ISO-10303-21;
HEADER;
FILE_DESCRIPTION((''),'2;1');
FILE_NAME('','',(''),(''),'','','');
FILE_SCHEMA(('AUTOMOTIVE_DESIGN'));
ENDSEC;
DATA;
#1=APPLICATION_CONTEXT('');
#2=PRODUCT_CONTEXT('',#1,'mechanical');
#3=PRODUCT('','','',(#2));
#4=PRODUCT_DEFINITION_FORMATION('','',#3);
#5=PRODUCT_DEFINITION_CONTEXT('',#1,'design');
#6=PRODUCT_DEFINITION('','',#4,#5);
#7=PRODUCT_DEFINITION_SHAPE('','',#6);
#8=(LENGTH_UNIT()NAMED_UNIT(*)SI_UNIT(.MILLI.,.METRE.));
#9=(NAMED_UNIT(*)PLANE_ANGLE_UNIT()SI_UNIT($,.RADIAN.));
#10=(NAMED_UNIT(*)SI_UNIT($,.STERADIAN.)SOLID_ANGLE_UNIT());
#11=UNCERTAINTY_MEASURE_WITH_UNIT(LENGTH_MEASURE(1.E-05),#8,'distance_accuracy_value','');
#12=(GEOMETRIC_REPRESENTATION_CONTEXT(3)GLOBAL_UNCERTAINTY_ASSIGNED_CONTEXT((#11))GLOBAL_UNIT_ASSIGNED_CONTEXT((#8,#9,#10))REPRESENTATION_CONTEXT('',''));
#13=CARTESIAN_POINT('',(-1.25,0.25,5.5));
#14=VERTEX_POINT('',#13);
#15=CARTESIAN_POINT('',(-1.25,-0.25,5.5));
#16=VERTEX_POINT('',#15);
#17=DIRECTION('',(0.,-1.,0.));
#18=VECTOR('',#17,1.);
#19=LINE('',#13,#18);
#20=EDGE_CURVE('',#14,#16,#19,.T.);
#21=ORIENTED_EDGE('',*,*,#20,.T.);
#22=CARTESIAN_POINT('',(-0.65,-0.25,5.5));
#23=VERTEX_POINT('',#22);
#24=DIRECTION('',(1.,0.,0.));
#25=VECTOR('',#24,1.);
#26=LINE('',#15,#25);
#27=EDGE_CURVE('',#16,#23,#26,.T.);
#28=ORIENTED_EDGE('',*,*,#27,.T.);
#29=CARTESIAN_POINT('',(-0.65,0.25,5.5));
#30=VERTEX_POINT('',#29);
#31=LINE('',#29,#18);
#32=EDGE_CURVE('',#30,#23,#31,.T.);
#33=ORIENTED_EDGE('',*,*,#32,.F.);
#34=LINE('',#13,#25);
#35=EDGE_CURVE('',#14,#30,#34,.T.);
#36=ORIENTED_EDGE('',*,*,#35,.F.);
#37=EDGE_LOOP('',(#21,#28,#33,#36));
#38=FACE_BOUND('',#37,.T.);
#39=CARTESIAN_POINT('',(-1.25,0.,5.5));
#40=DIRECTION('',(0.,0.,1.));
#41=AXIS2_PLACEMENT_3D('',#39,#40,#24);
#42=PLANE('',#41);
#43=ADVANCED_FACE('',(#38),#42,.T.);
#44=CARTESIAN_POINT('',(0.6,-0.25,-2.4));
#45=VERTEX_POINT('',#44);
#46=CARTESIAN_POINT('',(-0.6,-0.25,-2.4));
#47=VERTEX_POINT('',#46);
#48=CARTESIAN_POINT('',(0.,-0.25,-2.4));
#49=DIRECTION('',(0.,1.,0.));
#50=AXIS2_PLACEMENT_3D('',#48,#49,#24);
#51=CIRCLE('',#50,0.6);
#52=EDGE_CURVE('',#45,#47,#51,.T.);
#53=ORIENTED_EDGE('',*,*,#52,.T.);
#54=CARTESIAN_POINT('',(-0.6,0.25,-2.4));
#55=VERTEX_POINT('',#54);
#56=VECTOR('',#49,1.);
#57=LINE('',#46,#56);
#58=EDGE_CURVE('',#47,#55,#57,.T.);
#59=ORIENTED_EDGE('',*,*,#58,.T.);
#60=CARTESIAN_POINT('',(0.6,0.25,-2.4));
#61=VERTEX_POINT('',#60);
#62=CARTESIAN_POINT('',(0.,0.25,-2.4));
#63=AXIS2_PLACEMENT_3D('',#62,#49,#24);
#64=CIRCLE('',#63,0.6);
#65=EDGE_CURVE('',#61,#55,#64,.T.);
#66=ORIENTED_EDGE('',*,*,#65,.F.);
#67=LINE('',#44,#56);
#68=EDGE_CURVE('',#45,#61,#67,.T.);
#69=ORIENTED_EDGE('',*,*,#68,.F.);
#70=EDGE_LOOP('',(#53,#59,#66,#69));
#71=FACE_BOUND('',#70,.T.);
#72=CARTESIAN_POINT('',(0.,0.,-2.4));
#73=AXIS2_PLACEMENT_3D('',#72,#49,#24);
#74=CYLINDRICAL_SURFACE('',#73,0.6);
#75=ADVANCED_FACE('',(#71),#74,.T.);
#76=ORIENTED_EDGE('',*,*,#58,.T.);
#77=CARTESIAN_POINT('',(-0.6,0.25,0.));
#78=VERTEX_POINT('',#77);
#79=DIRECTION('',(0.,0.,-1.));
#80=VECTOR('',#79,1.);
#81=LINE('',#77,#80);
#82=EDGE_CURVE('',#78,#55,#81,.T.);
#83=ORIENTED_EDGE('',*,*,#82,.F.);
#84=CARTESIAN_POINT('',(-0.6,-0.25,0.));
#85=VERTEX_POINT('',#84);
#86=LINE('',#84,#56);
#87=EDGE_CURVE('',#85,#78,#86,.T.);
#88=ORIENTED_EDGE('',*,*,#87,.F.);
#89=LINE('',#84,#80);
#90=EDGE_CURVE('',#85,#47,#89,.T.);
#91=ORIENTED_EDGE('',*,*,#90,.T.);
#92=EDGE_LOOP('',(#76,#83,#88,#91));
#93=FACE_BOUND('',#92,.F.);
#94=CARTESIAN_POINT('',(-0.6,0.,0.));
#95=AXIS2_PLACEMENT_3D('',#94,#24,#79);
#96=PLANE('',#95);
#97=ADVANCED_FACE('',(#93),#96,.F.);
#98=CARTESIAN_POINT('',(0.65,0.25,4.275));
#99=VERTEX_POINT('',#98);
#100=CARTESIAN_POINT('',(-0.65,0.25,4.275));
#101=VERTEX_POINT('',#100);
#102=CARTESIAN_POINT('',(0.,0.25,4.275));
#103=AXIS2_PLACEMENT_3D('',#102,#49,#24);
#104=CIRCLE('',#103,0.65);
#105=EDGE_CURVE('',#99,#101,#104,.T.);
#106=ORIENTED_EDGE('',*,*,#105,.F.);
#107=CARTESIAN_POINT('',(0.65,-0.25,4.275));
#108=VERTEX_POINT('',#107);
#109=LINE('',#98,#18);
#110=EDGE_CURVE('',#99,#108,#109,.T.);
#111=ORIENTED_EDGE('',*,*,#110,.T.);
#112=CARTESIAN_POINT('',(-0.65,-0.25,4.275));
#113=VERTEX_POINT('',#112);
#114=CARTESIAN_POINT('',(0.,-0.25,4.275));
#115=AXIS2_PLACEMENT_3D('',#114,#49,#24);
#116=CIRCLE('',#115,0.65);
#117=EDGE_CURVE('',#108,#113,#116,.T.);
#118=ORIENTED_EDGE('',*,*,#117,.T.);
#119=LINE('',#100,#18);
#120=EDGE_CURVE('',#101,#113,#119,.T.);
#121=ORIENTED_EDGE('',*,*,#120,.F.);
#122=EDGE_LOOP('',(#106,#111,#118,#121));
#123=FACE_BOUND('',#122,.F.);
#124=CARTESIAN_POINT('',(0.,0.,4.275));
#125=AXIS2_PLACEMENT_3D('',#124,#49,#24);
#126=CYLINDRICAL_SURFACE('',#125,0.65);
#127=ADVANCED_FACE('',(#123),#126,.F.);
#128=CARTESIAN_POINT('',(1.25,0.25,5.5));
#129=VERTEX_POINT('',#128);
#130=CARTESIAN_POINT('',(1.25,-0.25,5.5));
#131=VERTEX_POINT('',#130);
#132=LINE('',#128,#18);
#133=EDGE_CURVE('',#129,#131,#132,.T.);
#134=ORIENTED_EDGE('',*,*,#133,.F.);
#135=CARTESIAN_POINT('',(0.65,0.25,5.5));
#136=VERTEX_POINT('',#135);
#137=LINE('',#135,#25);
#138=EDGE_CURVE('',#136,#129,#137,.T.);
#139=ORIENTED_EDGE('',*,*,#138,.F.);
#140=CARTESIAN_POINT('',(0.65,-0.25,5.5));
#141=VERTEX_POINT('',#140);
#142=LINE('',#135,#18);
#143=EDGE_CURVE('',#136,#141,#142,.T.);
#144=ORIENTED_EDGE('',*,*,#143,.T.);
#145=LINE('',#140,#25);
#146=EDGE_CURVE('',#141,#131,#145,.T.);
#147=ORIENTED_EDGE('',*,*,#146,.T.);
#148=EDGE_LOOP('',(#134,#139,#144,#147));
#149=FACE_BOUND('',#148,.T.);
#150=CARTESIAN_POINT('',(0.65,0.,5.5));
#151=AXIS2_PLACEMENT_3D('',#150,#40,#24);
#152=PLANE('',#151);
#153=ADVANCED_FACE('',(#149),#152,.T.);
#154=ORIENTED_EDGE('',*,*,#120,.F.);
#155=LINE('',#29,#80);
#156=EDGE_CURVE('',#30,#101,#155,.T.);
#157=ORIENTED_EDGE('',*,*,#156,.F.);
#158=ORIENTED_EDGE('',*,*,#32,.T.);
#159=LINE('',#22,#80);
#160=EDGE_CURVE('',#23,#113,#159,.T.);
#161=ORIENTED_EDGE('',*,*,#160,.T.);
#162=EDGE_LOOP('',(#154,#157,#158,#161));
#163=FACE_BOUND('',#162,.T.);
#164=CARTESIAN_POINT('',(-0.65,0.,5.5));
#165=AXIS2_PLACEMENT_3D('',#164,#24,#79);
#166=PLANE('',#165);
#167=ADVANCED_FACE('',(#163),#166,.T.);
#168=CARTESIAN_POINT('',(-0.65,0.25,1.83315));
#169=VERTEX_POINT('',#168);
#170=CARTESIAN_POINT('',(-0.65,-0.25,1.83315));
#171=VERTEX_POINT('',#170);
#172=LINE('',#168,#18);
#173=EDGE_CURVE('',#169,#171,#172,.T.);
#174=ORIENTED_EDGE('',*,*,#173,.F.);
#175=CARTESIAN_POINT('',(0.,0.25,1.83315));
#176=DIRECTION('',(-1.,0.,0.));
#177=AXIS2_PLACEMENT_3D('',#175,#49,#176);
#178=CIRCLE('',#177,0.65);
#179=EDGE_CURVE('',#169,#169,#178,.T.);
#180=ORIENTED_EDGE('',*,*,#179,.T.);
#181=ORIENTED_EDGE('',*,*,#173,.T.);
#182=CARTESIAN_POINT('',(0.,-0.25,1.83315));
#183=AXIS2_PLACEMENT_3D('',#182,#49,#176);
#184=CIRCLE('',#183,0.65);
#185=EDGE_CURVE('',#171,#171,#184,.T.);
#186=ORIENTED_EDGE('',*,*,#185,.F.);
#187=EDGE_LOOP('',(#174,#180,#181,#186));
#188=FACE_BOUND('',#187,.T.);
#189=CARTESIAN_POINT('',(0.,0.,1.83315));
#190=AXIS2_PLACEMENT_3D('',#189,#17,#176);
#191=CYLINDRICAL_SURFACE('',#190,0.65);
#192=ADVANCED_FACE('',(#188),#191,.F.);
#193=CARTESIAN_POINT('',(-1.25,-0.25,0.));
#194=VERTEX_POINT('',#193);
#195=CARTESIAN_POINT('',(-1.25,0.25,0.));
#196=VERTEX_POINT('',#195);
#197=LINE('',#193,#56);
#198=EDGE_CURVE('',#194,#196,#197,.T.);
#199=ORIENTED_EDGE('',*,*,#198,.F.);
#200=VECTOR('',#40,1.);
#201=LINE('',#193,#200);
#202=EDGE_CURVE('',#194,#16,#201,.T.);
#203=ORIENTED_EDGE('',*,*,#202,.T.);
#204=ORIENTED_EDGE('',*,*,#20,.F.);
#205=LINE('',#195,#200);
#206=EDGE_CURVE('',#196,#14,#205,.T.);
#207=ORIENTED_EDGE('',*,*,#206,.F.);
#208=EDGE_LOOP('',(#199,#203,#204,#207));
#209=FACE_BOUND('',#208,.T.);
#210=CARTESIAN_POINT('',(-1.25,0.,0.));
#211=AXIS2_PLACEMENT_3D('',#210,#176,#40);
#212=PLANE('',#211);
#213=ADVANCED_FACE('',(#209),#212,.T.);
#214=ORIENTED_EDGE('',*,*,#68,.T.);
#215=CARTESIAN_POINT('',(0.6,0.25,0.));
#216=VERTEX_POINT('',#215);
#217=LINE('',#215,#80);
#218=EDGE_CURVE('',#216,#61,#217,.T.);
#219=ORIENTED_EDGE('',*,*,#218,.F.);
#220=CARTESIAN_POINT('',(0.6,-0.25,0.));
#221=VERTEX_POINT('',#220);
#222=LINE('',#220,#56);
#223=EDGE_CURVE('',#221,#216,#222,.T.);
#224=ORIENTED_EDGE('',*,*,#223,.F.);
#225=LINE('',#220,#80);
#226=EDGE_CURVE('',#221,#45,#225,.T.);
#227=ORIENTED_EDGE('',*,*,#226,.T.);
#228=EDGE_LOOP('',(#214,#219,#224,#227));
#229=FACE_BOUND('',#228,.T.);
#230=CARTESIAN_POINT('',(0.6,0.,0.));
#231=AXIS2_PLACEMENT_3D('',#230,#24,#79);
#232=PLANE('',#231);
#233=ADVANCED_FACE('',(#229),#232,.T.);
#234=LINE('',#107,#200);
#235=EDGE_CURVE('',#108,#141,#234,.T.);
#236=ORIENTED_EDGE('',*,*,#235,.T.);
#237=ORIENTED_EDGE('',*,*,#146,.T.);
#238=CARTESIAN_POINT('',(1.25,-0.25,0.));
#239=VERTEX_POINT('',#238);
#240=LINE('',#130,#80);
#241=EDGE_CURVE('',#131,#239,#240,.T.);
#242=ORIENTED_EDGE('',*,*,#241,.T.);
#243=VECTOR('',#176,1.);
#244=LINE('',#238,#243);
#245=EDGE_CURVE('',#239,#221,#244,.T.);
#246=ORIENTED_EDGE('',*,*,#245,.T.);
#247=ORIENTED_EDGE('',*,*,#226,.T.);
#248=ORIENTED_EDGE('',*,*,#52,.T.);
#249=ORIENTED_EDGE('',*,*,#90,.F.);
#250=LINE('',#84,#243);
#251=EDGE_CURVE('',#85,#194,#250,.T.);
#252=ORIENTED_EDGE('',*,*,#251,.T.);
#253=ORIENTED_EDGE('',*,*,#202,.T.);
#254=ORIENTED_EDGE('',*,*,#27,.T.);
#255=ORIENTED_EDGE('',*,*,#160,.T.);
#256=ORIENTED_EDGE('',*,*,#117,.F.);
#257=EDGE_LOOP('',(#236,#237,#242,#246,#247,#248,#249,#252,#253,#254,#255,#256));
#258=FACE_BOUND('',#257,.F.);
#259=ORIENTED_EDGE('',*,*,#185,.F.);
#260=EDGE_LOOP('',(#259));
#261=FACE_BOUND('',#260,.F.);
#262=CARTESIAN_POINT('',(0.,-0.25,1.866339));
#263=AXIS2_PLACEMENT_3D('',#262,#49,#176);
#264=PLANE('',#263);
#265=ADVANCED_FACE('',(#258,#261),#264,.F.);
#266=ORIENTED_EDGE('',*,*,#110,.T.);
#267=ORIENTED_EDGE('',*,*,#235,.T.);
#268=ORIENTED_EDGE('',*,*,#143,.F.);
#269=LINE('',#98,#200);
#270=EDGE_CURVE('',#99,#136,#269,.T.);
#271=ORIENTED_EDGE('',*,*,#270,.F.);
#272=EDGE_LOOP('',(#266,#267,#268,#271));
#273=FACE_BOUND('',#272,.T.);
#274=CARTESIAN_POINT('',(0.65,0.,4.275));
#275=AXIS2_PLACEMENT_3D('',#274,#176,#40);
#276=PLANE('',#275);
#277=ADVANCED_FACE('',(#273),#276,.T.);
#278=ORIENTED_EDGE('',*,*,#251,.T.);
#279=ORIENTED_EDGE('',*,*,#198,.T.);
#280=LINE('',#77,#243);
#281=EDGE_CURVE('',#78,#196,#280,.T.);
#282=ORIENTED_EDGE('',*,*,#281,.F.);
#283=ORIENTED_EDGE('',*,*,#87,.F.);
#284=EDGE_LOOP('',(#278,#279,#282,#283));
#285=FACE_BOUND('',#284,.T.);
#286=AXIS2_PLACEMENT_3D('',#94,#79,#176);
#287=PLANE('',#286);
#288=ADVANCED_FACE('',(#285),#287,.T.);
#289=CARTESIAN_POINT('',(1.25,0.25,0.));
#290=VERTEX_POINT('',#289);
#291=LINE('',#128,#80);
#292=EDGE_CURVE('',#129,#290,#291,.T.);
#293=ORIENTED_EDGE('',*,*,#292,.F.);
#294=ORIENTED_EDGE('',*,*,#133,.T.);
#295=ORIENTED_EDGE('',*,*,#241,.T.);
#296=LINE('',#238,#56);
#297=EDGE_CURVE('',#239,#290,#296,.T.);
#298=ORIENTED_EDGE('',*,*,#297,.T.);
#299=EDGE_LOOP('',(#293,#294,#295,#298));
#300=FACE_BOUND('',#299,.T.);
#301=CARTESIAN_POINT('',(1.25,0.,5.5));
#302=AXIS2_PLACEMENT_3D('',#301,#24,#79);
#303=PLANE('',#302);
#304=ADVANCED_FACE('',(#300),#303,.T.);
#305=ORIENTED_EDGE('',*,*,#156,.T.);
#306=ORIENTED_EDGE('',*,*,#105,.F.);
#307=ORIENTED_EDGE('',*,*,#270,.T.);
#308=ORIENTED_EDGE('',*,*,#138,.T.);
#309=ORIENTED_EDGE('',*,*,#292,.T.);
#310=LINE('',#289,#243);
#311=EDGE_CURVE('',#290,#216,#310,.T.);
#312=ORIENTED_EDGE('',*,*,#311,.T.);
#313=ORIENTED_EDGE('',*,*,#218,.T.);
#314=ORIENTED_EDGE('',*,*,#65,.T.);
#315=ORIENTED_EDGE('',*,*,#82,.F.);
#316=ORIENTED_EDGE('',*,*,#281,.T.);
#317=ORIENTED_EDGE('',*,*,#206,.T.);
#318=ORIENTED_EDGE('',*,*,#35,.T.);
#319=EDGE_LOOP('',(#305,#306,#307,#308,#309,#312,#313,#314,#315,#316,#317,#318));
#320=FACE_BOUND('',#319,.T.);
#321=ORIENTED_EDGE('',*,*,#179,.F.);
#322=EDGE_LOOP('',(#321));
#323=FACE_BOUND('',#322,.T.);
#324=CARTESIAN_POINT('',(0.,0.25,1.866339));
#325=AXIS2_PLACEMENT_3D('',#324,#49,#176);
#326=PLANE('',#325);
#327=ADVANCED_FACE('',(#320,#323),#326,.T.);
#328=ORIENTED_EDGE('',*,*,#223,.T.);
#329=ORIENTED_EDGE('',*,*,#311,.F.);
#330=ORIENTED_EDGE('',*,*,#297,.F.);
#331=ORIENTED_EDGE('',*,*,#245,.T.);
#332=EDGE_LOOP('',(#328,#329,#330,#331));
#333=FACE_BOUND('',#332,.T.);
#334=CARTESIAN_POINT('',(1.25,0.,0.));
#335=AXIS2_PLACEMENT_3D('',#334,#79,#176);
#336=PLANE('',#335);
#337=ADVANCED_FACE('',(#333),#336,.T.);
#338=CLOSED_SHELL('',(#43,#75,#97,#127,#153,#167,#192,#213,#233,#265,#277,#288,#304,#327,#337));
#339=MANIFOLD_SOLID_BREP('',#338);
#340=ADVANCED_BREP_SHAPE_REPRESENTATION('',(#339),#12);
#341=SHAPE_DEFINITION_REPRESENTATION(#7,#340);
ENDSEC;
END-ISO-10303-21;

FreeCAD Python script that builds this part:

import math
import FreeCAD as App
import Part
import Sketcher
from FreeCAD import Vector

doc = App.newDocument("Part")
body = doc.addObject("PartDesign::Body", "Body")

# Sketch on XZ plane
sketch1 = body.newObject("Sketcher::SketchObject", "Sketch")
sketch1.AttachmentSupport = (doc.getObject("XZ_Plane"), [""])
sketch1.MapMode = "FlatFace"
sketch1.addGeometry(Part.LineSegment(Vector(1.2, 5.5, 0), Vector(1.2, 0, 0)), False)
sketch1.addGeometry(Part.LineSegment(Vector(1.2, 0, 0), Vector(0.6, 0, 0)), False)
sketch1.addGeometry(Part.LineSegment(Vector(0.6, 0, 0), Vector(0.6, -2.4, 0)), False)
sketch1.addGeometry(Part.ArcOfCircle(Part.Circle(Vector(0, -2.4, 0), Vector(0, 0, 1), 0.6), math.radians(180), math.radians(360)), False)
sketch1.addGeometry(Part.LineSegment(Vector(-0.6, -2.4, 0), Vector(-0.6, 0, 0)), False)
sketch1.addGeometry(Part.LineSegment(Vector(-0.6, 0, 0), Vector(-1.2, 0, 0)), False)
sketch1.addGeometry(Part.LineSegment(Vector(-1.2, 0, 0), Vector(-1.2, 5.5, 0)), False)
sketch1.addGeometry(Part.LineSegment(Vector(-1.2, 5.5, 0), Vector(-0.7, 5.5, 0)), False)
sketch1.addGeometry(Part.LineSegment(Vector(-0.7, 5.5, 0), Vector(-0.7, 4.3, 0)), False)
sketch1.addGeometry(Part.ArcOfCircle(Part.Circle(Vector(0, 4.3, 0), Vector(0, 0, 1), 0.7), math.radians(180), math.radians(360)), False)
sketch1.addGeometry(Part.LineSegment(Vector(0.7, 4.3, 0), Vector(0.7, 5.5, 0)), False)
sketch1.addGeometry(Part.LineSegment(Vector(0.7, 5.5, 0), Vector(1.2, 5.5, 0)), False)
sketch1.addGeometry(Part.Circle(Vector(0, 1.8, 0), Vector(0, 0, 1), 0.7), False)
sketch1.addConstraint(Sketcher.Constraint("Coincident", 0, 2, 1, 1))
sketch1.addConstraint(Sketcher.Constraint("Coincident", 1, 2, 2, 1))
sketch1.addConstraint(Sketcher.Constraint("Tangent", 2, 2, 3, 2))
sketch1.addConstraint(Sketcher.Constraint("Tangent", 3, 1, 4, 1))
sketch1.addConstraint(Sketcher.Constraint("Coincident", 4, 2, 5, 1))
sketch1.addConstraint(Sketcher.Constraint("Coincident", 5, 2, 6, 1))
sketch1.addConstraint(Sketcher.Constraint("Coincident", 6, 2, 7, 1))
sketch1.addConstraint(Sketcher.Constraint("Coincident", 7, 2, 8, 1))
sketch1.addConstraint(Sketcher.Constraint("Tangent", 8, 2, 9, 1))
sketch1.addConstraint(Sketcher.Constraint("Tangent", 9, 2, 10, 1))
sketch1.addConstraint(Sketcher.Constraint("Coincident", 10, 2, 11, 1))
sketch1.addConstraint(Sketcher.Constraint("Coincident", 11, 2, 0, 1))
sketch1.addConstraint(Sketcher.Constraint("Vertical", 0))
sketch1.addConstraint(Sketcher.Constraint("Horizontal", 1))
sketch1.addConstraint(Sketcher.Constraint("Vertical", 2))
sketch1.addConstraint(Sketcher.Constraint("Vertical", 4))
sketch1.addConstraint(Sketcher.Constraint("Horizontal", 5))
sketch1.addConstraint(Sketcher.Constraint("Vertical", 6))
sketch1.addConstraint(Sketcher.Constraint("Horizontal", 7))
sketch1.addConstraint(Sketcher.Constraint("Vertical", 8))
sketch1.addConstraint(Sketcher.Constraint("Vertical", 10))
sketch1.addConstraint(Sketcher.Constraint("Horizontal", 11))
sketch1.addConstraint(Sketcher.Constraint("Equal", 9, 12))
sketch1.addConstraint(Sketcher.Constraint("Symmetric", 1, 2, 4, 2, -1, 1))
sketch1.addConstraint(Sketcher.Constraint("Symmetric", 0, 2, 5, 2, -2))
sketch1.addConstraint(Sketcher.Constraint("Symmetric", 7, 2, 10, 2, -2))
sketch1.addConstraint(Sketcher.Constraint("PointOnObject", 12, 3, -2))
sketch1.addConstraint(Sketcher.Constraint("Diameter", 12, 1.3))
sketch1.addConstraint(Sketcher.Constraint("Radius", 3, 0.6))
sketch1.addConstraint(Sketcher.Constraint("DistanceX", 7, 1, 7, 2, 0.6))
sketch1.addConstraint(Sketcher.Constraint("DistanceY", 0, 2, 0, 1, 5.5))
sketch1.addConstraint(Sketcher.Constraint("DistanceY", 2, 2, 2, 1, 2.4))
sketch1.addConstraint(Sketcher.Constraint("DistanceY", 8, 2, 8, 1, 1.225))
sketch1.addConstraint(Sketcher.Constraint("DistanceY", -1, 1, 12, 3, 1.83315))
pad1 = body.newObject("PartDesign::Pad", "Pad")
pad1.Profile = sketch1
pad1.Length = 0.5
pad1.Midplane = True

doc.recompute()
